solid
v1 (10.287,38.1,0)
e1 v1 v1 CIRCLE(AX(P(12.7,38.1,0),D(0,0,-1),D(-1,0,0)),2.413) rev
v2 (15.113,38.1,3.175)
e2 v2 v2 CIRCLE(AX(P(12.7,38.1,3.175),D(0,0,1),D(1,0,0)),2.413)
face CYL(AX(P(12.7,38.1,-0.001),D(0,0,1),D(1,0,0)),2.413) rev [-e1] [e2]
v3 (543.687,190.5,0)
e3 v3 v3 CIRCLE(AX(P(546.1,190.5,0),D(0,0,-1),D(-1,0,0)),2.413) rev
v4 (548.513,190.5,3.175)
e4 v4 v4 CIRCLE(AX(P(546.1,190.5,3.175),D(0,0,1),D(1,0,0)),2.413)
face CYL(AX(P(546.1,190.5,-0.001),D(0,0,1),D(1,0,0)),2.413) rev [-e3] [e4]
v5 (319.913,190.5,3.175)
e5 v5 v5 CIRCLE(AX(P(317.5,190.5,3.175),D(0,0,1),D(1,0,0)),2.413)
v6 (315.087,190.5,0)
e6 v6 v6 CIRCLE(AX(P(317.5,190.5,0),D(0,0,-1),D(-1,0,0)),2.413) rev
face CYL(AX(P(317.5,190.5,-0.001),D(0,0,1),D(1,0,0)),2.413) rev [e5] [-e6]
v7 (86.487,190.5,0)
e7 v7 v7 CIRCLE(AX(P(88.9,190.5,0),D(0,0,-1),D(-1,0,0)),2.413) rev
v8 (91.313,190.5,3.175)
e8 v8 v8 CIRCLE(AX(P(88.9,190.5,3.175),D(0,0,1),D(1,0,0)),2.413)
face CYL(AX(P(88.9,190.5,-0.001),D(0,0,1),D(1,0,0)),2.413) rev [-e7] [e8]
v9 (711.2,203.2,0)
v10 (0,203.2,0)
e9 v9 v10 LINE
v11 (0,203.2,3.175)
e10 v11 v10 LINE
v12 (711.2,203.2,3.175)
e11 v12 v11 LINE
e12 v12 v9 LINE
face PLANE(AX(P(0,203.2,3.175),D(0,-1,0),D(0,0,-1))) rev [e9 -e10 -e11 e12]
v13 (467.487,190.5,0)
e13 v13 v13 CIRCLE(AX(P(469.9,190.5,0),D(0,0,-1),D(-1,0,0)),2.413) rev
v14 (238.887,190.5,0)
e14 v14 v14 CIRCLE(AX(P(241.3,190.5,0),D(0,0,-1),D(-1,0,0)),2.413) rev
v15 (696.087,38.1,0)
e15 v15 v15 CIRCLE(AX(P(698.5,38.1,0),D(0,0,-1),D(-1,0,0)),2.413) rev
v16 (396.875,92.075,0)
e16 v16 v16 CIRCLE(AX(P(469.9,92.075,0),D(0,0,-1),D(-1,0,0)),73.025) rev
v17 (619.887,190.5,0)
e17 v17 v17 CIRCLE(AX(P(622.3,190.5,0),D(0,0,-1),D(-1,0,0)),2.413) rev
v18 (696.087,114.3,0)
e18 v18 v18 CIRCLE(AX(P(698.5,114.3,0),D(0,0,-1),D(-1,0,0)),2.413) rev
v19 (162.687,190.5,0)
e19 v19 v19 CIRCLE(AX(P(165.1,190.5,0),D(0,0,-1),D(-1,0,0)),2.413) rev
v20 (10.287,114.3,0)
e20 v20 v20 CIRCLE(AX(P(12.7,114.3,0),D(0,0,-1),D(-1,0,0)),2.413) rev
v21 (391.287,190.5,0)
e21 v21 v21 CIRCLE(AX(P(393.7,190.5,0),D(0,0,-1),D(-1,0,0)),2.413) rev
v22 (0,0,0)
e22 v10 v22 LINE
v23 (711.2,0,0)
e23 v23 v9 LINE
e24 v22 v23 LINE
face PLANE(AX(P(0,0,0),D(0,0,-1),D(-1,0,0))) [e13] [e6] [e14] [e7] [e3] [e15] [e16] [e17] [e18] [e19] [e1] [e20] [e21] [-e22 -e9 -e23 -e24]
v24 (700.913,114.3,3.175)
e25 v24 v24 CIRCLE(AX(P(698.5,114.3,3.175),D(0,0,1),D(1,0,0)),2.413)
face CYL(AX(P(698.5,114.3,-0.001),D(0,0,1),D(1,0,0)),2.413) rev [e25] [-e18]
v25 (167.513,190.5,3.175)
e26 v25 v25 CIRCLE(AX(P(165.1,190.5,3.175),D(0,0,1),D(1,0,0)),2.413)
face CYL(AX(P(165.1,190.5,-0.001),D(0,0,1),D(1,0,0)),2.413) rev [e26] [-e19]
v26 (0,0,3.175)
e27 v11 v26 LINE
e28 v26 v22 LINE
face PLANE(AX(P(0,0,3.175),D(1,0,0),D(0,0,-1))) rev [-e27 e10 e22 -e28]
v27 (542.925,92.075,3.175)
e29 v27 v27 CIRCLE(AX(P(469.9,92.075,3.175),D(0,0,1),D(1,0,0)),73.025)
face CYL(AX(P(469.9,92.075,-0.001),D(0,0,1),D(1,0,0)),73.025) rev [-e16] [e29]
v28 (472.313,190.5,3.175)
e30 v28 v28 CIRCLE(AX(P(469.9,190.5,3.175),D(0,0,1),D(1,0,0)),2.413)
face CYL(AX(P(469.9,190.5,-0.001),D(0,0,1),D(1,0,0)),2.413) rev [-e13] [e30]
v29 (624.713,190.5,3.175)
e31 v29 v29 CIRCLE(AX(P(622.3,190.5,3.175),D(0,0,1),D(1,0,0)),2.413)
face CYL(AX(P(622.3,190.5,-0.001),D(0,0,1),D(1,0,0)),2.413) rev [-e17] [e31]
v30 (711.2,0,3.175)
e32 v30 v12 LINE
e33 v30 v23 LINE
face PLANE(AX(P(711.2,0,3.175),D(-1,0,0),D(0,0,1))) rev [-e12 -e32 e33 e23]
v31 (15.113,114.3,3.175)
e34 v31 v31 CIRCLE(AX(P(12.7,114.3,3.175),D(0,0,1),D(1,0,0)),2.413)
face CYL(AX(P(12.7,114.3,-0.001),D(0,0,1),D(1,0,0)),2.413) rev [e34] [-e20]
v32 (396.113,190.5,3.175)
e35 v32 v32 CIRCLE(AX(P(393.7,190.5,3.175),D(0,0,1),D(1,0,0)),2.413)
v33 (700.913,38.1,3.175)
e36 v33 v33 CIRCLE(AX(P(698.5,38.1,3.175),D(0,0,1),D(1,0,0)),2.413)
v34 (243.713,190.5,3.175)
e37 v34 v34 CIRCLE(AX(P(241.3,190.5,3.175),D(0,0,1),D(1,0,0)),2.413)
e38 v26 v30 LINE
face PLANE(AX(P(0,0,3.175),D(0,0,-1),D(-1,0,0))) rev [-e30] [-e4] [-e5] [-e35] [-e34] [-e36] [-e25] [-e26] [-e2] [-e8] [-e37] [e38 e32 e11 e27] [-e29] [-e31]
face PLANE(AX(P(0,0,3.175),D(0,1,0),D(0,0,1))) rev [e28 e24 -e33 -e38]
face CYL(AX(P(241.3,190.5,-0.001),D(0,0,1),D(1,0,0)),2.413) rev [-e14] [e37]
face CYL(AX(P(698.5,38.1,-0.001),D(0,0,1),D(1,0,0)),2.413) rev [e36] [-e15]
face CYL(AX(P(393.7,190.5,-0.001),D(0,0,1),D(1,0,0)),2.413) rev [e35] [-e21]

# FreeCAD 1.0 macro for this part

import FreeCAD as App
import Part
import Sketcher
from FreeCAD import Vector
Q = App.Units.Quantity

doc = App.newDocument("Part")
body = doc.addObject("PartDesign::Body", "Body")

sketch1 = body.newObject("Sketcher::SketchObject", "Sketch")
sketch1.AttachmentSupport = (doc.getObject("XY_Plane"), [""])
sketch1.MapMode = "FlatFace"
sketch1.addGeometry(Part.LineSegment(Vector(0, 203, 0), Vector(0, 0, 0)), False)
sketch1.addGeometry(Part.LineSegment(Vector(0, 0, 0), Vector(711, 0, 0)), False)
sketch1.addGeometry(Part.LineSegment(Vector(711, 0, 0), Vector(711, 203, 0)), False)
sketch1.addGeometry(Part.LineSegment(Vector(711, 203, 0), Vector(0, 203, 0)), False)
sketch1.addConstraint(Sketcher.Constraint("Coincident", 0, 2, 1, 1))
sketch1.addConstraint(Sketcher.Constraint("Coincident", 1, 2, 2, 1))
sketch1.addConstraint(Sketcher.Constraint("Coincident", 2, 2, 3, 1))
sketch1.addConstraint(Sketcher.Constraint("Coincident", 3, 2, 0, 1))
sketch1.addConstraint(Sketcher.Constraint("Vertical", 0))
sketch1.addConstraint(Sketcher.Constraint("Horizontal", 1))
sketch1.addConstraint(Sketcher.Constraint("Vertical", 2))
sketch1.addConstraint(Sketcher.Constraint("Horizontal", 3))
sketch1.addConstraint(Sketcher.Constraint("Coincident", 0, 2, -1, 1))
sketch1.addConstraint(Sketcher.Constraint("DistanceX", 1, 1, 1, 2, Q("28 in")))
sketch1.addConstraint(Sketcher.Constraint("DistanceY", 0, 2, 0, 1, Q("8 in")))
pad1 = body.newObject("PartDesign::Pad", "Pad")
pad1.Profile = sketch1
pad1.Length = Q("0.125 in")

sketch2 = body.newObject("Sketcher::SketchObject", "Sketch001")
sketch2.AttachmentSupport = (doc.getObject("XY_Plane"), [""])
sketch2.MapMode = "FlatFace"
sketch2.AttachmentOffset = App.Placement(Vector(0, 0, 0.125 * 25.4), App.Rotation())
sketch2.addGeometry(Part.Circle(Vector(12.7, 114.3, 0), Vector(0, 0, 1), 2.4), False)
sketch2.addConstraint(Sketcher.Constraint("Diameter", 0, Q("0.19 in")))
sketch2.addConstraint(Sketcher.Constraint("DistanceX", -1, 1, 0, 3, Q("0.5 in")))
sketch2.addConstraint(Sketcher.Constraint("DistanceY", -1, 1, 0, 3, Q("4.5 in")))
pocket1 = body.newObject("PartDesign::Pocket", "Pocket")
pocket1.Profile = sketch2
pocket1.Type = "UpToFirst"

sketch3 = body.newObject("Sketcher::SketchObject", "Sketch002")
sketch3.AttachmentSupport = (doc.getObject("XY_Plane"), [""])
sketch3.MapMode = "FlatFace"
sketch3.AttachmentOffset = App.Placement(Vector(0, 0, 0.125 * 25.4), App.Rotation())
sketch3.addGeometry(Part.Circle(Vector(698.5, 114.3, 0), Vector(0, 0, 1), 2.4), False)
sketch3.addConstraint(Sketcher.Constraint("Diameter", 0, Q("0.19 in")))
sketch3.addConstraint(Sketcher.Constraint("DistanceX", -1, 1, 0, 3, Q("27.5 in")))
sketch3.addConstraint(Sketcher.Constraint("DistanceY", -1, 1, 0, 3, Q("4.5 in")))
pocket2 = body.newObject("PartDesign::Pocket", "Pocket001")
pocket2.Profile = sketch3
pocket2.Type = "UpToFirst"

sketch4 = body.newObject("Sketcher::SketchObject", "Sketch003")
sketch4.AttachmentSupport = (doc.getObject("XY_Plane"), [""])
sketch4.MapMode = "FlatFace"
sketch4.AttachmentOffset = App.Placement(Vector(0, 0, 0.125 * 25.4), App.Rotation())
sketch4.addGeometry(Part.Circle(Vector(12.7, 38.1, 0), Vector(0, 0, 1), 2.4), False)
sketch4.addConstraint(Sketcher.Constraint("Diameter", 0, Q("0.19 in")))
sketch4.addConstraint(Sketcher.Constraint("DistanceX", -1, 1, 0, 3, Q("0.5 in")))
sketch4.addConstraint(Sketcher.Constraint("DistanceY", -1, 1, 0, 3, Q("1.5 in")))
pocket3 = body.newObject("PartDesign::Pocket", "Pocket002")
pocket3.Profile = sketch4
pocket3.Type = "UpToFirst"

sketch5 = body.newObject("Sketcher::SketchObject", "Sketch004")
sketch5.AttachmentSupport = (doc.getObject("XY_Plane"), [""])
sketch5.MapMode = "FlatFace"
sketch5.AttachmentOffset = App.Placement(Vector(0, 0, 0.125 * 25.4), App.Rotation())
sketch5.addGeometry(Part.Circle(Vector(698.5, 38.1, 0), Vector(0, 0, 1), 2.4), False)
sketch5.addConstraint(Sketcher.Constraint("Diameter", 0, Q("0.19 in")))
sketch5.addConstraint(Sketcher.Constraint("DistanceX", -1, 1, 0, 3, Q("27.5 in")))
sketch5.addConstraint(Sketcher.Constraint("DistanceY", -1, 1, 0, 3, Q("1.5 in")))
pocket4 = body.newObject("PartDesign::Pocket", "Pocket003")
pocket4.Profile = sketch5
pocket4.Type = "UpToFirst"

sketch6 = body.newObject("Sketcher::SketchObject", "Sketch005")
sketch6.AttachmentSupport = (doc.getObject("XY_Plane"), [""])
sketch6.MapMode = "FlatFace"
sketch6.AttachmentOffset = App.Placement(Vector(0, 0, 0.125 * 25.4), App.Rotation())
sketch6.addGeometry(Part.Circle(Vector(88.9, 190.5, 0), Vector(0, 0, 1), 2.4), False)
sketch6.addConstraint(Sketcher.Constraint("Diameter", 0, Q("0.19 in")))
sketch6.addConstraint(Sketcher.Constraint("DistanceX", -1, 1, 0, 3, Q("3.5 in")))
sketch6.addConstraint(Sketcher.Constraint("DistanceY", -1, 1, 0, 3, Q("7.5 in")))
pocket5 = body.newObject("PartDesign::Pocket", "Pocket004")
pocket5.Profile = sketch6
pocket5.Type = "UpToFirst"

sketch7 = body.newObject("Sketcher::SketchObject", "Sketch006")
sketch7.AttachmentSupport = (doc.getObject("XY_Plane"), [""])
sketch7.MapMode = "FlatFace"
sketch7.AttachmentOffset = App.Placement(Vector(0, 0, 0.125 * 25.4), App.Rotation())
sketch7.addGeometry(Part.Circle(Vector(165.1, 190.5, 0), Vector(0, 0, 1), 2.4), False)
sketch7.addConstraint(Sketcher.Constraint("Diameter", 0, Q("0.19 in")))
sketch7.addConstraint(Sketcher.Constraint("DistanceX", -1, 1, 0, 3, Q("6.5 in")))
sketch7.addConstraint(Sketcher.Constraint("DistanceY", -1, 1, 0, 3, Q("7.5 in")))
pocket6 = body.newObject("PartDesign::Pocket", "Pocket005")
pocket6.Profile = sketch7
pocket6.Type = "UpToFirst"

sketch8 = body.newObject("Sketcher::SketchObject", "Sketch007")
sketch8.AttachmentSupport = (doc.getObject("XY_Plane"), [""])
sketch8.MapMode = "FlatFace"
sketch8.AttachmentOffset = App.Placement(Vector(0, 0, 0.125 * 25.4), App.Rotation())
sketch8.addGeometry(Part.Circle(Vector(241.3, 190.5, 0), Vector(0, 0, 1), 2.4), False)
sketch8.addConstraint(Sketcher.Constraint("Diameter", 0, Q("0.19 in")))
sketch8.addConstraint(Sketcher.Constraint("DistanceX", -1, 1, 0, 3, Q("9.5 in")))
sketch8.addConstraint(Sketcher.Constraint("DistanceY", -1, 1, 0, 3, Q("7.5 in")))
pocket7 = body.newObject("PartDesign::Pocket", "Pocket006")
pocket7.Profile = sketch8
pocket7.Type = "UpToFirst"

sketch9 = body.newObject("Sketcher::SketchObject", "Sketch008")
sketch9.AttachmentSupport = (doc.getObject("XY_Plane"), [""])
sketch9.MapMode = "FlatFace"
sketch9.AttachmentOffset = App.Placement(Vector(0, 0, 0.125 * 25.4), App.Rotation())
sketch9.addGeometry(Part.Circle(Vector(622.3, 190.5, 0), Vector(0, 0, 1), 2.4), False)
sketch9.addConstraint(Sketcher.Constraint("Diameter", 0, Q("0.19 in")))
sketch9.addConstraint(Sketcher.Constraint("DistanceX", -1, 1, 0, 3, Q("24.5 in")))
sketch9.addConstraint(Sketcher.Constraint("DistanceY", -1, 1, 0, 3, Q("7.5 in")))
pocket8 = body.newObject("PartDesign::Pocket", "Pocket007")
pocket8.Profile = sketch9
pocket8.Type = "UpToFirst"

sketch10 = body.newObject("Sketcher::SketchObject", "Sketch009")
sketch10.AttachmentSupport = (doc.getObject("XY_Plane"), [""])
sketch10.MapMode = "FlatFace"
sketch10.AttachmentOffset = App.Placement(Vector(0, 0, 0.125 * 25.4), App.Rotation())
sketch10.addGeometry(Part.Circle(Vector(546.1, 190.5, 0), Vector(0, 0, 1), 2.4), False)
sketch10.addConstraint(Sketcher.Constraint("Diameter", 0, Q("0.19 in")))
sketch10.addConstraint(Sketcher.Constraint("DistanceX", -1, 1, 0, 3, Q("21.5 in")))
sketch10.addConstraint(Sketcher.Constraint("DistanceY", -1, 1, 0, 3, Q("7.5 in")))
pocket9 = body.newObject("PartDesign::Pocket", "Pocket008")
pocket9.Profile = sketch10
pocket9.Type = "UpToFirst"

sketch11 = body.newObject("Sketcher::SketchObject", "Sketch010")
sketch11.AttachmentSupport = (doc.getObject("XY_Plane"), [""])
sketch11.MapMode = "FlatFace"
sketch11.AttachmentOffset = App.Placement(Vector(0, 0, 0.125 * 25.4), App.Rotation())
sketch11.addGeometry(Part.Circle(Vector(469.9, 190.5, 0), Vector(0, 0, 1), 2.4), False)
sketch11.addConstraint(Sketcher.Constraint("Diameter", 0, Q("0.19 in")))
sketch11.addConstraint(Sketcher.Constraint("DistanceX", -1, 1, 0, 3, Q("18.5 in")))
sketch11.addConstraint(Sketcher.Constraint("DistanceY", -1, 1, 0, 3, Q("7.5 in")))
pocket10 = body.newObject("PartDesign::Pocket", "Pocket009")
pocket10.Profile = sketch11
pocket10.Type = "UpToFirst"

sketch12 = body.newObject("Sketcher::SketchObject", "Sketch011")
sketch12.AttachmentSupport = (doc.getObject("XY_Plane"), [""])
sketch12.MapMode = "FlatFace"
sketch12.AttachmentOffset = App.Placement(Vector(0, 0, 0.125 * 25.4), App.Rotation())
sketch12.addGeometry(Part.Circle(Vector(393.7, 190.5, 0), Vector(0, 0, 1), 2.4), False)
sketch12.addConstraint(Sketcher.Constraint("Diameter", 0, Q("0.19 in")))
sketch12.addConstraint(Sketcher.Constraint("DistanceX", -1, 1, 0, 3, Q("15.5 in")))
sketch12.addConstraint(Sketcher.Constraint("DistanceY", -1, 1, 0, 3, Q("7.5 in")))
pocket11 = body.newObject("PartDesign::Pocket", "Pocket010")
pocket11.Profile = sketch12
pocket11.Type = "UpToFirst"

sketch13 = body.newObject("Sketcher::SketchObject", "Sketch012")
sketch13.AttachmentSupport = (doc.getObject("XY_Plane"), [""])
sketch13.MapMode = "FlatFace"
sketch13.AttachmentOffset = App.Placement(Vector(0, 0, 0.125 * 25.4), App.Rotation())
sketch13.addGeometry(Part.Circle(Vector(317.5, 190.5, 0), Vector(0, 0, 1), 2.4), False)
sketch13.addConstraint(Sketcher.Constraint("Diameter", 0, Q("0.19 in")))
sketch13.addConstraint(Sketcher.Constraint("DistanceX", -1, 1, 0, 3, Q("12.5 in")))
sketch13.addConstraint(Sketcher.Constraint("DistanceY", -1, 1, 0, 3, Q("7.5 in")))
pocket12 = body.newObject("PartDesign::Pocket", "Pocket011")
pocket12.Profile = sketch13
pocket12.Type = "UpToFirst"

sketch14 = body.newObject("Sketcher::SketchObject", "Sketch013")
sketch14.AttachmentSupport = (doc.getObject("XY_Plane"), [""])
sketch14.MapMode = "FlatFace"
sketch14.AttachmentOffset = App.Placement(Vector(0, 0, 0.125 * 25.4), App.Rotation())
sketch14.addGeometry(Part.Circle(Vector(470, 92, 0), Vector(0, 0, 1), 73), False)
sketch14.addConstraint(Sketcher.Constraint("Diameter", 0, Q("5.75 in")))
sketch14.addConstraint(Sketcher.Constraint("DistanceX", -1, 1, 0, 3, Q("18.5 in")))
sketch14.addConstraint(Sketcher.Constraint("DistanceY", -1, 1, 0, 3, Q("3.625 in")))
pocket13 = body.newObject("PartDesign::Pocket", "Pocket012")
pocket13.Profile = sketch14
pocket13.Type = "UpToFirst"

doc.recompute()
